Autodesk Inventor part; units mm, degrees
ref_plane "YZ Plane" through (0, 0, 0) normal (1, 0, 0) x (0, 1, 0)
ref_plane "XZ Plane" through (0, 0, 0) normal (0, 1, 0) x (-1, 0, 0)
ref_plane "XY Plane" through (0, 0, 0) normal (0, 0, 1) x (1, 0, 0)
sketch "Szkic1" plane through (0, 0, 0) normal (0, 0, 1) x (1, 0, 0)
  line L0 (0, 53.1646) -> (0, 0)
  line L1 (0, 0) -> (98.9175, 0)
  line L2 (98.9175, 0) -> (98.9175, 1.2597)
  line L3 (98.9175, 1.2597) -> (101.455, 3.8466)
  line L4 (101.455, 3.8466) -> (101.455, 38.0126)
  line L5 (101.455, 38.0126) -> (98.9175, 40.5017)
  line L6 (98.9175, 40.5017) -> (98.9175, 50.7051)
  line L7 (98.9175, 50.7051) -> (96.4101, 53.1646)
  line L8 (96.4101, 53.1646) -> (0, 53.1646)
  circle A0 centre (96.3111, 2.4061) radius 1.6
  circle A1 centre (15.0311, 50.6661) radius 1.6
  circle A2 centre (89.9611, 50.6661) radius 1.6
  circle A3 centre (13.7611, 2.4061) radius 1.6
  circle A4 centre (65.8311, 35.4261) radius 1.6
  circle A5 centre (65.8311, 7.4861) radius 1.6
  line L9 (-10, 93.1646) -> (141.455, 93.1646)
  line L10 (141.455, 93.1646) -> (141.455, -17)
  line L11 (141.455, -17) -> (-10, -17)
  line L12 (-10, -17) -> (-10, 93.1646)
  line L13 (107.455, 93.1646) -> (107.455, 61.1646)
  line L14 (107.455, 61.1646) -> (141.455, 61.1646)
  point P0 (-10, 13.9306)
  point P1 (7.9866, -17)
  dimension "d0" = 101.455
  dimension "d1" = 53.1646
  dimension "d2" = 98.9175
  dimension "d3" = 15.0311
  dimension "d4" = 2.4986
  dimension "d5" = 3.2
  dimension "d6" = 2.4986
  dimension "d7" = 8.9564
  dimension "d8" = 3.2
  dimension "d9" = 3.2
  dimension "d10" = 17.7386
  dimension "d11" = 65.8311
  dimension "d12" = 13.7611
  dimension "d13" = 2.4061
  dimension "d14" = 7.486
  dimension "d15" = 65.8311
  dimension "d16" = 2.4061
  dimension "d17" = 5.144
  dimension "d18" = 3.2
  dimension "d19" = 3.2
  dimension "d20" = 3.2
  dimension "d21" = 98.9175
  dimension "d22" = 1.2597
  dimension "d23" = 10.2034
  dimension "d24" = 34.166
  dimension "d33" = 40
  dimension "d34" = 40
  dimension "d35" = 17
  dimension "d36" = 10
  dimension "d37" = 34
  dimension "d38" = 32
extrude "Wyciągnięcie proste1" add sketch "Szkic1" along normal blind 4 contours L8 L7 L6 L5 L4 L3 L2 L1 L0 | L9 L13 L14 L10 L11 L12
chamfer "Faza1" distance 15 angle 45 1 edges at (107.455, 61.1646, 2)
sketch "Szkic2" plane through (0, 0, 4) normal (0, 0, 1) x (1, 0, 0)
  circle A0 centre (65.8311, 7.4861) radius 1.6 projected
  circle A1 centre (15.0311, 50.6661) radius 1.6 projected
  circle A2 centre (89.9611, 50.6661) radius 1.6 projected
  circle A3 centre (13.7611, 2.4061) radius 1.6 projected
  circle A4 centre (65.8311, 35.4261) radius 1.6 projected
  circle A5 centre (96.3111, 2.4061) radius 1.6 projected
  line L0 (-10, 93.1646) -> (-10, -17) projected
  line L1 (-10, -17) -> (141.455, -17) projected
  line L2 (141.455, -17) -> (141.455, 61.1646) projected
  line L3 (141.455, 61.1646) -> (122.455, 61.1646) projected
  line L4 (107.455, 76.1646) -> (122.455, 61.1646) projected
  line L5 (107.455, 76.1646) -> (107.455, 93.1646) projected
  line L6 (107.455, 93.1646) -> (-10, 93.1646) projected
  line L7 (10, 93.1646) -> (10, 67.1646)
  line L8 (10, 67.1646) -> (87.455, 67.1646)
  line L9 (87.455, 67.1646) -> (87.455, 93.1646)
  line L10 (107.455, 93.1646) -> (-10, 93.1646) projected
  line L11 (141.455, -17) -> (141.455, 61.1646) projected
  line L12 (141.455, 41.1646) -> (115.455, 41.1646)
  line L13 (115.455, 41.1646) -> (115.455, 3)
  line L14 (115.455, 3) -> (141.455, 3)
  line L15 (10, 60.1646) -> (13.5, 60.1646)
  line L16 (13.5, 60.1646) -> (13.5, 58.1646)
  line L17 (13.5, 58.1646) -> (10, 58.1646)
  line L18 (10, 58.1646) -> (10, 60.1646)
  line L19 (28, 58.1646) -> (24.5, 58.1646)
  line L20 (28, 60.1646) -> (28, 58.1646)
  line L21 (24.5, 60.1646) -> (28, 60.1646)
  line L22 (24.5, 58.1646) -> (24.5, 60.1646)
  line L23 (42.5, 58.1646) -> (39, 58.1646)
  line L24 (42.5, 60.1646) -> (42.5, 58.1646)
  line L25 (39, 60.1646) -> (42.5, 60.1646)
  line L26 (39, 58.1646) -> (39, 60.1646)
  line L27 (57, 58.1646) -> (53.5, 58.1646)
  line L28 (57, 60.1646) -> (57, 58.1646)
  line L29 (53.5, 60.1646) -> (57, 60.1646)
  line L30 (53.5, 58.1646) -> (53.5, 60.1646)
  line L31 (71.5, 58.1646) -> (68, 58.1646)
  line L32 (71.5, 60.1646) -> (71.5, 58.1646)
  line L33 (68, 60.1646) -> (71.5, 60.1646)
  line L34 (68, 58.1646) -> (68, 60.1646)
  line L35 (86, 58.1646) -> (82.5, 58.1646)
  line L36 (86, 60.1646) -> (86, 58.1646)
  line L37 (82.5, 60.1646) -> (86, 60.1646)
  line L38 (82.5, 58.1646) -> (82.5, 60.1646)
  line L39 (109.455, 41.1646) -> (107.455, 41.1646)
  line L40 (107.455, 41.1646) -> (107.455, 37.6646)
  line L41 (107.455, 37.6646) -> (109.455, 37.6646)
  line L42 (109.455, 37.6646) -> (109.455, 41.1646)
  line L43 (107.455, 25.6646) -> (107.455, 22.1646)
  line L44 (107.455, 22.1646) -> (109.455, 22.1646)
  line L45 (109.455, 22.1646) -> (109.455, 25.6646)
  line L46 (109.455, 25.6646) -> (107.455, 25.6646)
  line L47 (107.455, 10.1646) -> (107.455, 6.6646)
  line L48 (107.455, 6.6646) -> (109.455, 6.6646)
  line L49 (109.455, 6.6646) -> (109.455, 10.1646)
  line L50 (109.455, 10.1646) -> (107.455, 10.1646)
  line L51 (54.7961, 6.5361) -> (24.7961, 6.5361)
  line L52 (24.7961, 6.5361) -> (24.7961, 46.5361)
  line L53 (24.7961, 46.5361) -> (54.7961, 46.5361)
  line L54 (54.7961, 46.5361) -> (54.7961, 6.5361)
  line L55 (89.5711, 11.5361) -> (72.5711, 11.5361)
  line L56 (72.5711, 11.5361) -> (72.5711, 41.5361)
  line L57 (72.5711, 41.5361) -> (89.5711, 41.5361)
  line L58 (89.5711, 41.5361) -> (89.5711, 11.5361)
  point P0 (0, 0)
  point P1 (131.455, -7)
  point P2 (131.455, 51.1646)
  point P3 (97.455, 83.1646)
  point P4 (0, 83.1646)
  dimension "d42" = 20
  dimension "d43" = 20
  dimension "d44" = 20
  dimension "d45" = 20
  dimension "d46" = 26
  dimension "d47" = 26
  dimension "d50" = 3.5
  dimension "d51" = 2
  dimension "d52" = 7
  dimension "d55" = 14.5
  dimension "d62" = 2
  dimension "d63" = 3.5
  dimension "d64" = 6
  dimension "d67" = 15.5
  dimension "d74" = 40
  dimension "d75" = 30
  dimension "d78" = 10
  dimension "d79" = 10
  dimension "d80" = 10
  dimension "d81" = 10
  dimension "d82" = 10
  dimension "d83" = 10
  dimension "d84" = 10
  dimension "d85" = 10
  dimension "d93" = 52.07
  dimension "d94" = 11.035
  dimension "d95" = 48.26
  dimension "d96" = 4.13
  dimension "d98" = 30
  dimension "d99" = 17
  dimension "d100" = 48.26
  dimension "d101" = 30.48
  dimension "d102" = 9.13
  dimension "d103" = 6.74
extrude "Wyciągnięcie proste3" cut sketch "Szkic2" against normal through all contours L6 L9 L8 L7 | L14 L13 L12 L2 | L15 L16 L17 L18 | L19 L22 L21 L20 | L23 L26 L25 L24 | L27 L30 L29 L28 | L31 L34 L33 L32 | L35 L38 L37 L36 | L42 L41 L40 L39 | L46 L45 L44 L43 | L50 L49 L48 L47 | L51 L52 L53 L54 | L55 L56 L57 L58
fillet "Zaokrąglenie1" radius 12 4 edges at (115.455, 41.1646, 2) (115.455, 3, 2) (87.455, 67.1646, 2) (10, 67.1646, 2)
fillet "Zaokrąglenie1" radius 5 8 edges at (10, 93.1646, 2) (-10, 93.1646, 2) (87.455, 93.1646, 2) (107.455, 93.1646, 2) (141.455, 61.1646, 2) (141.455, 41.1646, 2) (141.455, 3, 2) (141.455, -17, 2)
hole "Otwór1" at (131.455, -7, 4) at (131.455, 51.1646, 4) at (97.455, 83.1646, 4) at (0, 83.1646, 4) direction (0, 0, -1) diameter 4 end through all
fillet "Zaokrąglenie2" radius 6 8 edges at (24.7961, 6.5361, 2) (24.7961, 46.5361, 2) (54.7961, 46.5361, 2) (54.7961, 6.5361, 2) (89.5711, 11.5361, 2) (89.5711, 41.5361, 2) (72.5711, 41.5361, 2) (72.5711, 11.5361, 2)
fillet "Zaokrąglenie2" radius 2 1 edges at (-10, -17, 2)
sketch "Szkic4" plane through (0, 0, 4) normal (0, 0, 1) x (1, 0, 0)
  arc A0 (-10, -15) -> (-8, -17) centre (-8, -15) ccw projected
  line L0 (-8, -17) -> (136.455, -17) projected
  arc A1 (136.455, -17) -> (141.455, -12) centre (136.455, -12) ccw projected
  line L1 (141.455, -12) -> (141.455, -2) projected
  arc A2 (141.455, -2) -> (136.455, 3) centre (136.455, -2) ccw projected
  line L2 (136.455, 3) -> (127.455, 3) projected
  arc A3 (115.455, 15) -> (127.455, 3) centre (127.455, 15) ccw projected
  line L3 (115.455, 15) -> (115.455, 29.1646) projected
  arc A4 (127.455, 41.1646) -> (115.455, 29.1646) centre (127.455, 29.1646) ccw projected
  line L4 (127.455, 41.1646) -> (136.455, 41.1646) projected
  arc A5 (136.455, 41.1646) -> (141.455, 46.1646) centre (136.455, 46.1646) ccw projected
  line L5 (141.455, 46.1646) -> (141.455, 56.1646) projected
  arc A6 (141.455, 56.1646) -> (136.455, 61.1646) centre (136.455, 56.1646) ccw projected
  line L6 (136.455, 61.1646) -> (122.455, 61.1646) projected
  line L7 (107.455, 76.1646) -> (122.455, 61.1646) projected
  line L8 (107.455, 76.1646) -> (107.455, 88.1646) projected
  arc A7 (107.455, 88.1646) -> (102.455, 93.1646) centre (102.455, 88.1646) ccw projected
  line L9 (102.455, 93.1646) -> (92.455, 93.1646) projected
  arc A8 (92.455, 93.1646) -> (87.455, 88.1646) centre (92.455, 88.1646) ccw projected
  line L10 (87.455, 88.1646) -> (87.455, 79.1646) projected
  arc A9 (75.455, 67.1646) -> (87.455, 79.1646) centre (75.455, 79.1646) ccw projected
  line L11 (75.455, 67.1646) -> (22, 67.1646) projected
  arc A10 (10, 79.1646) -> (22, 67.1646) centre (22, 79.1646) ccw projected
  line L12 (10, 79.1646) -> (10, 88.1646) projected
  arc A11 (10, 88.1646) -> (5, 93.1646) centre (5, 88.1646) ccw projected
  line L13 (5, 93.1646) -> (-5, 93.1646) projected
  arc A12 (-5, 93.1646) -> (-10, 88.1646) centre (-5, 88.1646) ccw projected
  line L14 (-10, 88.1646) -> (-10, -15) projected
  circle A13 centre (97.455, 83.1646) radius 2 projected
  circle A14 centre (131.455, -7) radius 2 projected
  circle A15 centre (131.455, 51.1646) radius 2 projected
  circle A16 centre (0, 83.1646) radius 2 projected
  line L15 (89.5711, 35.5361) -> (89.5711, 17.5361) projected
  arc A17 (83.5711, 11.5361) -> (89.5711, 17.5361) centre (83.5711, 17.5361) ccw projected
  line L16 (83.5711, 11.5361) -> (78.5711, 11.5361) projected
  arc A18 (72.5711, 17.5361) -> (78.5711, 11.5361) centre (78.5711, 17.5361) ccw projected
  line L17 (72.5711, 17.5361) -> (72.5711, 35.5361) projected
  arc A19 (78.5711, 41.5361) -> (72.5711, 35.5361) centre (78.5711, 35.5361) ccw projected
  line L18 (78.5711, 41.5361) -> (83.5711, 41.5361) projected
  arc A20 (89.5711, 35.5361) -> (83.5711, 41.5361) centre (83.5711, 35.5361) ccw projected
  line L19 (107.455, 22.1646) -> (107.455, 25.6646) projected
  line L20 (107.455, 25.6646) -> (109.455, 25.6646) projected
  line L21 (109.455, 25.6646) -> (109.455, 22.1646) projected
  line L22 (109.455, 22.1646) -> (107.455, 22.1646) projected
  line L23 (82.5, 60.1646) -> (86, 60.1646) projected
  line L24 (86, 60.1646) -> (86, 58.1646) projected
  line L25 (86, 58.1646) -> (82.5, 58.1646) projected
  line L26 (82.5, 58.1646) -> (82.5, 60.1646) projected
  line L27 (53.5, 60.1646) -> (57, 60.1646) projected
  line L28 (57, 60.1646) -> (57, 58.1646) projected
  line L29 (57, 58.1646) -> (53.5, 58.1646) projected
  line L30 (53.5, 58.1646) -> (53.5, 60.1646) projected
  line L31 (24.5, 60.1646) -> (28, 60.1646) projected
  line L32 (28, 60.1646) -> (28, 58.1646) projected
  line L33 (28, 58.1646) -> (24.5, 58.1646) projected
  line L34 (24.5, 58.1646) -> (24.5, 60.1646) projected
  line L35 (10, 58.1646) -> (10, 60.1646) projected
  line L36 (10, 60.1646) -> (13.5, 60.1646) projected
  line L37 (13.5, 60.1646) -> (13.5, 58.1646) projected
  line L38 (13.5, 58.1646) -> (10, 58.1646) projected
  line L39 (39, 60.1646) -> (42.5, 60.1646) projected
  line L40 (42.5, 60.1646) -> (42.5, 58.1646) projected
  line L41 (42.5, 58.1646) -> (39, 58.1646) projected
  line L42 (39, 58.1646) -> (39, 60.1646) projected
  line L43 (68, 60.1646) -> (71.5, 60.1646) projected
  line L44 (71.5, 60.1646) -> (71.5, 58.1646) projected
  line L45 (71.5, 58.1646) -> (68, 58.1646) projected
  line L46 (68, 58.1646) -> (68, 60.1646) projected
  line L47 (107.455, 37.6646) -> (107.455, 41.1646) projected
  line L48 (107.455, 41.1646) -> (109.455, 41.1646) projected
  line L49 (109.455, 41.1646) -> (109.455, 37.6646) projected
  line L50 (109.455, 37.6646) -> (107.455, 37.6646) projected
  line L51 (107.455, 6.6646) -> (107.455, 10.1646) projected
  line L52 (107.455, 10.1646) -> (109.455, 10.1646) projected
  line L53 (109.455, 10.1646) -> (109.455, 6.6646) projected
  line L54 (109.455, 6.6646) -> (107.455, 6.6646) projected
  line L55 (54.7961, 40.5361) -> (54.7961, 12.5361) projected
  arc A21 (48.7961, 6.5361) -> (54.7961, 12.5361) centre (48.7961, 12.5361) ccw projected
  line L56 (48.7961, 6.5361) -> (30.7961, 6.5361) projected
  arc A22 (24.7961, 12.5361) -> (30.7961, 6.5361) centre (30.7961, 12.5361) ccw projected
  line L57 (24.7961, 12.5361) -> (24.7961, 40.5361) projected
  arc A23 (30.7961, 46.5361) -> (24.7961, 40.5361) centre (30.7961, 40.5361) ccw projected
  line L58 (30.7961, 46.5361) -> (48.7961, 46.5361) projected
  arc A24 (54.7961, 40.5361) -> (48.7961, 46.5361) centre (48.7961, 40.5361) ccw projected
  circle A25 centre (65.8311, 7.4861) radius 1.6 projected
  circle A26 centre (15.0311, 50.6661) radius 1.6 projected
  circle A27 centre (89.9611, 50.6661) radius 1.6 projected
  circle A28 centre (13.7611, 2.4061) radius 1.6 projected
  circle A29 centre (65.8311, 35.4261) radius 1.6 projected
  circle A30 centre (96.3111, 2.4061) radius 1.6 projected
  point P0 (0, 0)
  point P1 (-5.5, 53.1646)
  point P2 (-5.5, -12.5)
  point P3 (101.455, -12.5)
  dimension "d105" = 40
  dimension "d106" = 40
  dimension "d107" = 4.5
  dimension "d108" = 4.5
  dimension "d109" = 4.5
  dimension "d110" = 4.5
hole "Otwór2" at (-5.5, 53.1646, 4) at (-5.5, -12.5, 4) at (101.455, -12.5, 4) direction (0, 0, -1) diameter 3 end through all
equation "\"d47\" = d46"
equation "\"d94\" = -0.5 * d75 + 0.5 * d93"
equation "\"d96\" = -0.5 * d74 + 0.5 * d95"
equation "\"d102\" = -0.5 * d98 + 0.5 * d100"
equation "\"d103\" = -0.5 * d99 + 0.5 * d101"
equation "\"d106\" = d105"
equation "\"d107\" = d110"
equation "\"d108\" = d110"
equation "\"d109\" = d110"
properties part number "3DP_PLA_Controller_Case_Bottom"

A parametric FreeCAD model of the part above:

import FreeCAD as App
import Part
import Sketcher
Q = App.Units.Quantity


def edges_at(feature, points):
    """Names of the edges that pass closest to the given points."""
    edges = feature.Shape.Edges
    near = lambda p: min(range(len(edges)), key=lambda i: edges[i].distToShape(Part.Vertex(*p))[0])
    return sorted({f"Edge{near(p) + 1}" for p in points})

doc = App.newDocument("Part")
body = doc.addObject("PartDesign::Body", "Body")

# Sketch on XY plane
sketch1 = doc.addObject("Sketcher::SketchObject", "Sketch")
body.addObject(sketch1)
sketch1.AttachmentSupport = (doc.XY_Plane, [""])
sketch1.MapMode = "FlatFace"
sketch1.addGeometry(Part.LineSegment(App.Vector(107.455, 93.1646, 0), App.Vector(-10, 93.1646, 0)), False)
sketch1.addGeometry(Part.LineSegment(App.Vector(-10, 93.1646, 0), App.Vector(-10, -17, 0)), False)
sketch1.addGeometry(Part.LineSegment(App.Vector(-10, -17, 0), App.Vector(141.455, -17, 0)), False)
sketch1.addGeometry(Part.LineSegment(App.Vector(141.455, -17, 0), App.Vector(141.455, 61.1646, 0)), False)
sketch1.addGeometry(Part.LineSegment(App.Vector(141.455, 61.1646, 0), App.Vector(107.455, 61.1646, 0)), False)
sketch1.addGeometry(Part.LineSegment(App.Vector(107.455, 61.1646, 0), App.Vector(107.455, 93.1646, 0)), False)
sketch1.addGeometry(Part.Circle(App.Vector(13.7611, 2.4061, 0), App.Vector(0, 0, 1), 1.6), False)
sketch1.addGeometry(Part.Circle(App.Vector(65.8311, 7.4861, 0), App.Vector(0, 0, 1), 1.6), False)
sketch1.addGeometry(Part.Circle(App.Vector(96.3111, 2.4061, 0), App.Vector(0, 0, 1), 1.6), False)
sketch1.addGeometry(Part.Circle(App.Vector(65.8311, 35.4261, 0), App.Vector(0, 0, 1), 1.6), False)
sketch1.addGeometry(Part.Circle(App.Vector(15.0311, 50.6661, 0), App.Vector(0, 0, 1), 1.6), False)
sketch1.addGeometry(Part.Circle(App.Vector(89.9611, 50.6661, 0), App.Vector(0, 0, 1), 1.6), False)
sketch1.addConstraint(Sketcher.Constraint("Coincident", 0, 2, 1, 1))
sketch1.addConstraint(Sketcher.Constraint("Coincident", 1, 2, 2, 1))
sketch1.addConstraint(Sketcher.Constraint("Coincident", 2, 2, 3, 1))
sketch1.addConstraint(Sketcher.Constraint("Coincident", 3, 2, 4, 1))
sketch1.addConstraint(Sketcher.Constraint("Coincident", 4, 2, 5, 1))
sketch1.addConstraint(Sketcher.Constraint("Coincident", 5, 2, 0, 1))
sketch1.addConstraint(Sketcher.Constraint("Horizontal", 0))
sketch1.addConstraint(Sketcher.Constraint("Vertical", 1))
sketch1.addConstraint(Sketcher.Constraint("Horizontal", 2))
sketch1.addConstraint(Sketcher.Constraint("Vertical", 3))
sketch1.addConstraint(Sketcher.Constraint("Horizontal", 4))
sketch1.addConstraint(Sketcher.Constraint("Vertical", 5))
sketch1.addConstraint(Sketcher.Constraint("Equal", 6, 7))
sketch1.addConstraint(Sketcher.Constraint("Equal", 7, 8))
sketch1.addConstraint(Sketcher.Constraint("Equal", 8, 9))
sketch1.addConstraint(Sketcher.Constraint("Equal", 9, 10))
sketch1.addConstraint(Sketcher.Constraint("Equal", 10, 11))
sketch1.addConstraint(Sketcher.Constraint("Horizontal", 6, 3, 8, 3))
sketch1.addConstraint(Sketcher.Constraint("Horizontal", 10, 3, 11, 3))
sketch1.addConstraint(Sketcher.Constraint("Vertical", 7, 3, 9, 3))
sketch1.addConstraint(Sketcher.Constraint("Diameter", 6, Q("3.2 mm")))
sketch1.addConstraint(Sketcher.Constraint("DistanceX", 4, 2, 4, 1, Q("34 mm")))
sketch1.addConstraint(Sketcher.Constraint("DistanceY", 5, 1, 5, 2, Q("32 mm")))
sketch1.addConstraint(Sketcher.Constraint("DistanceX", 0, 2, -1, 1, Q("10 mm")))
sketch1.addConstraint(Sketcher.Constraint("DistanceY", 1, 2, -1, 1, Q("17 mm")))
sketch1.addConstraint(Sketcher.Constraint("DistanceX", -1, 1, 6, 3, Q("13.761 mm")))
sketch1.addConstraint(Sketcher.Constraint("DistanceY", -1, 1, 6, 3, Q("2.406 mm")))
sketch1.addConstraint(Sketcher.Constraint("DistanceX", -1, 1, 7, 3, Q("65.831 mm")))
sketch1.addConstraint(Sketcher.Constraint("DistanceY", -1, 1, 7, 3, Q("7.486 mm")))
sketch1.addConstraint(Sketcher.Constraint("DistanceX", -1, 1, 10, 3, Q("15.031 mm")))
sketch1.addConstraint(Sketcher.Constraint("DistanceX", 6, 3, 11, 3, Q("76.2 mm")))
sketch1.addConstraint(Sketcher.Constraint("DistanceX", 0, 2, 0, 1, Q("117.455 mm")))
sketch1.addConstraint(Sketcher.Constraint("DistanceX", 7, 3, 8, 3, Q("30.48 mm")))
sketch1.addConstraint(Sketcher.Constraint("DistanceY", 7, 3, 9, 3, Q("27.94 mm")))
sketch1.addConstraint(Sketcher.Constraint("DistanceY", 6, 3, 10, 3, Q("48.26 mm")))
sketch1.addConstraint(Sketcher.Constraint("DistanceY", 1, 2, 1, 1, Q("110.1646 mm")))
pad1 = doc.addObject("PartDesign::Pad", "Pad")
body.addObject(pad1)
pad1.Profile = sketch1
pad1.Length = 4
doc.recompute()

chamfer = doc.addObject("PartDesign::Chamfer", "Chamfer")
body.addObject(chamfer)
chamfer.Base = (pad1, edges_at(pad1, [(107.455, 61.165, 2)]))
chamfer.Size = 15

# Sketch on XY plane
sketch2 = doc.addObject("Sketcher::SketchObject", "Sketch001")
body.addObject(sketch2)
sketch2.AttachmentSupport = (doc.XY_Plane, [""])
sketch2.MapMode = "FlatFace"
sketch2.AttachmentOffset = App.Placement(App.Vector(0, 0, 4), App.Rotation())
sketch2.addGeometry(Part.LineSegment(App.Vector(87.455, 93.1646, 0), App.Vector(10, 93.1646, 0)), False)
sketch2.addGeometry(Part.LineSegment(App.Vector(10, 93.1646, 0), App.Vector(10, 67.1646, 0)), False)
sketch2.addGeometry(Part.LineSegment(App.Vector(10, 67.1646, 0), App.Vector(87.455, 67.1646, 0)), False)
sketch2.addGeometry(Part.LineSegment(App.Vector(87.455, 67.1646, 0), App.Vector(87.455, 93.1646, 0)), False)
sketch2.addGeometry(Part.LineSegment(App.Vector(115.455, 3, 0), App.Vector(141.455, 3, 0)), False)
sketch2.addGeometry(Part.LineSegment(App.Vector(141.455, 3, 0), App.Vector(141.455, 41.1646, 0)), False)
sketch2.addGeometry(Part.LineSegment(App.Vector(141.455, 41.1646, 0), App.Vector(115.455, 41.1646, 0)), False)
sketch2.addGeometry(Part.LineSegment(App.Vector(115.455, 41.1646, 0), App.Vector(115.455, 3, 0)), False)
sketch2.addGeometry(Part.LineSegment(App.Vector(13.5, 60.1646, 0), App.Vector(10, 60.1646, 0)), False)
sketch2.addGeometry(Part.LineSegment(App.Vector(10, 60.1646, 0), App.Vector(10, 58.1646, 0)), False)
sketch2.addGeometry(Part.LineSegment(App.Vector(10, 58.1646, 0), App.Vector(13.5, 58.1646, 0)), False)
sketch2.addGeometry(Part.LineSegment(App.Vector(13.5, 58.1646, 0), App.Vector(13.5, 60.1646, 0)), False)
sketch2.addGeometry(Part.LineSegment(App.Vector(24.5, 58.1646, 0), App.Vector(28, 58.1646, 0)), False)
sketch2.addGeometry(Part.LineSegment(App.Vector(28, 58.1646, 0), App.Vector(28, 60.1646, 0)), False)
sketch2.addGeometry(Part.LineSegment(App.Vector(28, 60.1646, 0), App.Vector(24.5, 60.1646, 0)), False)
sketch2.addGeometry(Part.LineSegment(App.Vector(24.5, 60.1646, 0), App.Vector(24.5, 58.1646, 0)), False)
sketch2.addGeometry(Part.LineSegment(App.Vector(39, 58.1646, 0), App.Vector(42.5, 58.1646, 0)), False)
sketch2.addGeometry(Part.LineSegment(App.Vector(42.5, 58.1646, 0), App.Vector(42.5, 60.1646, 0)), False)
sketch2.addGeometry(Part.LineSegment(App.Vector(42.5, 60.1646, 0), App.Vector(39, 60.1646, 0)), False)
sketch2.addGeometry(Part.LineSegment(App.Vector(39, 60.1646, 0), App.Vector(39, 58.1646, 0)), False)
sketch2.addGeometry(Part.LineSegment(App.Vector(53.5, 58.1646, 0), App.Vector(57, 58.1646, 0)), False)
sketch2.addGeometry(Part.LineSegment(App.Vector(57, 58.1646, 0), App.Vector(57, 60.1646, 0)), False)
sketch2.addGeometry(Part.LineSegment(App.Vector(57, 60.1646, 0), App.Vector(53.5, 60.1646, 0)), False)
sketch2.addGeometry(Part.LineSegment(App.Vector(53.5, 60.1646, 0), App.Vector(53.5, 58.1646, 0)), False)
sketch2.addGeometry(Part.LineSegment(App.Vector(68, 58.1646, 0), App.Vector(71.5, 58.1646, 0)), False)
sketch2.addGeometry(Part.LineSegment(App.Vector(71.5, 58.1646, 0), App.Vector(71.5, 60.1646, 0)), False)
sketch2.addGeometry(Part.LineSegment(App.Vector(71.5, 60.1646, 0), App.Vector(68, 60.1646, 0)), False)
sketch2.addGeometry(Part.LineSegment(App.Vector(68, 60.1646, 0), App.Vector(68, 58.1646, 0)), False)
sketch2.addGeometry(Part.LineSegment(App.Vector(82.5, 58.1646, 0), App.Vector(86, 58.1646, 0)), False)
sketch2.addGeometry(Part.LineSegment(App.Vector(86, 58.1646, 0), App.Vector(86, 60.1646, 0)), False)
sketch2.addGeometry(Part.LineSegment(App.Vector(86, 60.1646, 0), App.Vector(82.5, 60.1646, 0)), False)
sketch2.addGeometry(Part.LineSegment(App.Vector(82.5, 60.1646, 0), App.Vector(82.5, 58.1646, 0)), False)
sketch2.addGeometry(Part.LineSegment(App.Vector(109.455, 37.6646, 0), App.Vector(109.455, 41.1646, 0)), False)
sketch2.addGeometry(Part.LineSegment(App.Vector(109.455, 41.1646, 0), App.Vector(107.455, 41.1646, 0)), False)
sketch2.addGeometry(Part.LineSegment(App.Vector(107.455, 41.1646, 0), App.Vector(107.455, 37.6646, 0)), False)
sketch2.addGeometry(Part.LineSegment(App.Vector(107.455, 37.6646, 0), App.Vector(109.455, 37.6646, 0)), False)
sketch2.addGeometry(Part.LineSegment(App.Vector(109.455, 25.6646, 0), App.Vector(107.455, 25.6646, 0)), False)
sketch2.addGeometry(Part.LineSegment(App.Vector(107.455, 25.6646, 0), App.Vector(107.455, 22.1646, 0)), False)
sketch2.addGeometry(Part.LineSegment(App.Vector(107.455, 22.1646, 0), App.Vector(109.455, 22.1646, 0)), False)
sketch2.addGeometry(Part.LineSegment(App.Vector(109.455, 22.1646, 0), App.Vector(109.455, 25.6646, 0)), False)
sketch2.addGeometry(Part.LineSegment(App.Vector(109.455, 10.1646, 0), App.Vector(107.455, 10.1646, 0)), False)
sketch2.addGeometry(Part.LineSegment(App.Vector(107.455, 10.1646, 0), App.Vector(107.455, 6.6646, 0)), False)
sketch2.addGeometry(Part.LineSegment(App.Vector(107.455, 6.6646, 0), App.Vector(109.455, 6.6646, 0)), False)
sketch2.addGeometry(Part.LineSegment(App.Vector(109.455, 6.6646, 0), App.Vector(109.455, 10.1646, 0)), False)
sketch2.addGeometry(Part.LineSegment(App.Vector(24.7961, 6.5361, 0), App.Vector(54.7961, 6.5361, 0)), False)
sketch2.addGeometry(Part.LineSegment(App.Vector(54.7961, 6.5361, 0), App.Vector(54.7961, 46.5361, 0)), False)
sketch2.addGeometry(Part.LineSegment(App.Vector(54.7961, 46.5361, 0), App.Vector(24.7961, 46.5361, 0)), False)
sketch2.addGeometry(Part.LineSegment(App.Vector(24.7961, 46.5361, 0), App.Vector(24.7961, 6.5361, 0)), False)
sketch2.addGeometry(Part.LineSegment(App.Vector(72.5711, 11.5361, 0), App.Vector(89.5711, 11.5361, 0)), False)
sketch2.addGeometry(Part.LineSegment(App.Vector(89.5711, 11.5361, 0), App.Vector(89.5711, 41.5361, 0)), False)
sketch2.addGeometry(Part.LineSegment(App.Vector(89.5711, 41.5361, 0), App.Vector(72.5711, 41.5361, 0)), False)
sketch2.addGeometry(Part.LineSegment(App.Vector(72.5711, 41.5361, 0), App.Vector(72.5711, 11.5361, 0)), False)
sketch2.addConstraint(Sketcher.Constraint("Coincident", 0, 2, 1, 1))
sketch2.addConstraint(Sketcher.Constraint("Coincident", 1, 2, 2, 1))
sketch2.addConstraint(Sketcher.Constraint("Coincident", 2, 2, 3, 1))
sketch2.addConstraint(Sketcher.Constraint("Coincident", 3, 2, 0, 1))
sketch2.addConstraint(Sketcher.Constraint("Coincident", 4, 2, 5, 1))
sketch2.addConstraint(Sketcher.Constraint("Coincident", 5, 2, 6, 1))
sketch2.addConstraint(Sketcher.Constraint("Coincident", 6, 2, 7, 1))
sketch2.addConstraint(Sketcher.Constraint("Coincident", 7, 2, 4, 1))
sketch2.addConstraint(Sketcher.Constraint("Coincident", 8, 2, 9, 1))
sketch2.addConstraint(Sketcher.Constraint("Coincident", 9, 2, 10, 1))
sketch2.addConstraint(Sketcher.Constraint("Coincident", 10, 2, 11, 1))
sketch2.addConstraint(Sketcher.Constraint("Coincident", 11, 2, 8, 1))
sketch2.addConstraint(Sketcher.Constraint("Coincident", 12, 2, 13, 1))
sketch2.addConstraint(Sketcher.Constraint("Coincident", 13, 2, 14, 1))
sketch2.addConstraint(Sketcher.Constraint("Coincident", 14, 2, 15, 1))
sketch2.addConstraint(Sketcher.Constraint("Coincident", 15, 2, 12, 1))
sketch2.addConstraint(Sketcher.Constraint("Coincident", 16, 2, 17, 1))
sketch2.addConstraint(Sketcher.Constraint("Coincident", 17, 2, 18, 1))
sketch2.addConstraint(Sketcher.Constraint("Coincident", 18, 2, 19, 1))
sketch2.addConstraint(Sketcher.Constraint("Coincident", 19, 2, 16, 1))
sketch2.addConstraint(Sketcher.Constraint("Coincident", 20, 2, 21, 1))
sketch2.addConstraint(Sketcher.Constraint("Coincident", 21, 2, 22, 1))
sketch2.addConstraint(Sketcher.Constraint("Coincident", 22, 2, 23, 1))
sketch2.addConstraint(Sketcher.Constraint("Coincident", 23, 2, 20, 1))
sketch2.addConstraint(Sketcher.Constraint("Coincident", 24, 2, 25, 1))
sketch2.addConstraint(Sketcher.Constraint("Coincident", 25, 2, 26, 1))
sketch2.addConstraint(Sketcher.Constraint("Coincident", 26, 2, 27, 1))
sketch2.addConstraint(Sketcher.Constraint("Coincident", 27, 2, 24, 1))
sketch2.addConstraint(Sketcher.Constraint("Coincident", 28, 2, 29, 1))
sketch2.addConstraint(Sketcher.Constraint("Coincident", 29, 2, 30, 1))
sketch2.addConstraint(Sketcher.Constraint("Coincident", 30, 2, 31, 1))
sketch2.addConstraint(Sketcher.Constraint("Coincident", 31, 2, 28, 1))
sketch2.addConstraint(Sketcher.Constraint("Coincident", 32, 2, 33, 1))
sketch2.addConstraint(Sketcher.Constraint("Coincident", 33, 2, 34, 1))
sketch2.addConstraint(Sketcher.Constraint("Coincident", 34, 2, 35, 1))
sketch2.addConstraint(Sketcher.Constraint("Coincident", 35, 2, 32, 1))
sketch2.addConstraint(Sketcher.Constraint("Coincident", 36, 2, 37, 1))
sketch2.addConstraint(Sketcher.Constraint("Coincident", 37, 2, 38, 1))
sketch2.addConstraint(Sketcher.Constraint("Coincident", 38, 2, 39, 1))
sketch2.addConstraint(Sketcher.Constraint("Coincident", 39, 2, 36, 1))
sketch2.addConstraint(Sketcher.Constraint("Coincident", 40, 2, 41, 1))
sketch2.addConstraint(Sketcher.Constraint("Coincident", 41, 2, 42, 1))
sketch2.addConstraint(Sketcher.Constraint("Coincident", 42, 2, 43, 1))
sketch2.addConstraint(Sketcher.Constraint("Coincident", 43, 2, 40, 1))
sketch2.addConstraint(Sketcher.Constraint("Coincident", 44, 2, 45, 1))
sketch2.addConstraint(Sketcher.Constraint("Coincident", 45, 2, 46, 1))
sketch2.addConstraint(Sketcher.Constraint("Coincident", 46, 2, 47, 1))
sketch2.addConstraint(Sketcher.Constraint("Coincident", 47, 2, 44, 1))
sketch2.addConstraint(Sketcher.Constraint("Coincident", 48, 2, 49, 1))
sketch2.addConstraint(Sketcher.Constraint("Coincident", 49, 2, 50, 1))
sketch2.addConstraint(Sketcher.Constraint("Coincident", 50, 2, 51, 1))
sketch2.addConstraint(Sketcher.Constraint("Coincident", 51, 2, 48, 1))
sketch2.addConstraint(Sketcher.Constraint("Horizontal", 0))
sketch2.addConstraint(Sketcher.Constraint("Vertical", 1))
sketch2.addConstraint(Sketcher.Constraint("Horizontal", 2))
sketch2.addConstraint(Sketcher.Constraint("Vertical", 3))
sketch2.addConstraint(Sketcher.Constraint("Horizontal", 4))
sketch2.addConstraint(Sketcher.Constraint("Vertical", 5))
sketch2.addConstraint(Sketcher.Constraint("Horizontal", 6))
sketch2.addConstraint(Sketcher.Constraint("Vertical", 7))
sketch2.addConstraint(Sketcher.Constraint("Horizontal", 8))
sketch2.addConstraint(Sketcher.Constraint("Vertical", 9))
sketch2.addConstraint(Sketcher.Constraint("Horizontal", 10))
sketch2.addConstraint(Sketcher.Constraint("Vertical", 11))
sketch2.addConstraint(Sketcher.Constraint("Horizontal", 12))
sketch2.addConstraint(Sketcher.Constraint("Vertical", 13))
sketch2.addConstraint(Sketcher.Constraint("Horizontal", 14))
sketch2.addConstraint(Sketcher.Constraint("Vertical", 15))
sketch2.addConstraint(Sketcher.Constraint("Horizontal", 16))
sketch2.addConstraint(Sketcher.Constraint("Vertical", 17))
sketch2.addConstraint(Sketcher.Constraint("Horizontal", 18))
sketch2.addConstraint(Sketcher.Constraint("Vertical", 19))
sketch2.addConstraint(Sketcher.Constraint("Horizontal", 20))
sketch2.addConstraint(Sketcher.Constraint("Vertical", 21))
sketch2.addConstraint(Sketcher.Constraint("Horizontal", 22))
sketch2.addConstraint(Sketcher.Constraint("Vertical", 23))
sketch2.addConstraint(Sketcher.Constraint("Horizontal", 24))
sketch2.addConstraint(Sketcher.Constraint("Vertical", 25))
sketch2.addConstraint(Sketcher.Constraint("Horizontal", 26))
sketch2.addConstraint(Sketcher.Constraint("Vertical", 27))
sketch2.addConstraint(Sketcher.Constraint("Horizontal", 28))
sketch2.addConstraint(Sketcher.Constraint("Vertical", 29))
sketch2.addConstraint(Sketcher.Constraint("Horizontal", 30))
sketch2.addConstraint(Sketcher.Constraint("Vertical", 31))
sketch2.addConstraint(Sketcher.Constraint("Vertical", 32))
sketch2.addConstraint(Sketcher.Constraint("Horizontal", 33))
sketch2.addConstraint(Sketcher.Constraint("Vertical", 34))
sketch2.addConstraint(Sketcher.Constraint("Horizontal", 35))
sketch2.addConstraint(Sketcher.Constraint("Horizontal", 36))
sketch2.addConstraint(Sketcher.Constraint("Vertical", 37))
sketch2.addConstraint(Sketcher.Constraint("Horizontal", 38))
sketch2.addConstraint(Sketcher.Constraint("Vertical", 39))
sketch2.addConstraint(Sketcher.Constraint("Horizontal", 40))
sketch2.addConstraint(Sketcher.Constraint("Vertical", 41))
sketch2.addConstraint(Sketcher.Constraint("Horizontal", 42))
sketch2.addConstraint(Sketcher.Constraint("Vertical", 43))
sketch2.addConstraint(Sketcher.Constraint("Horizontal", 44))
sketch2.addConstraint(Sketcher.Constraint("Vertical", 45))
sketch2.addConstraint(Sketcher.Constraint("Horizontal", 46))
sketch2.addConstraint(Sketcher.Constraint("Vertical", 47))
sketch2.addConstraint(Sketcher.Constraint("Horizontal", 48))
sketch2.addConstraint(Sketcher.Constraint("Vertical", 49))
sketch2.addConstraint(Sketcher.Constraint("Horizontal", 50))
sketch2.addConstraint(Sketcher.Constraint("Vertical", 51))
sketch2.addConstraint(Sketcher.Constraint("Horizontal", 10, 2, 12, 2))
sketch2.addConstraint(Sketcher.Constraint("Horizontal", 11, 2, 13, 2))
sketch2.addConstraint(Sketcher.Constraint("Horizontal", 15, 2, 16, 2))
sketch2.addConstraint(Sketcher.Constraint("Horizontal", 14, 2, 17, 2))
sketch2.addConstraint(Sketcher.Constraint("Horizontal", 19, 2, 20, 2))
sketch2.addConstraint(Sketcher.Constraint("Horizontal", 18, 2, 21, 2))
sketch2.addConstraint(Sketcher.Constraint("Horizontal", 23, 2, 24, 2))
sketch2.addConstraint(Sketcher.Constraint("Horizontal", 22, 2, 25, 2))
sketch2.addConstraint(Sketcher.Constraint("Horizontal", 27, 2, 28, 2))
sketch2.addConstraint(Sketcher.Constraint("Horizontal", 26, 2, 29, 2))
sketch2.addConstraint(Sketcher.Constraint("Horizontal", 6, 2, 32, 2))
sketch2.addConstraint(Sketcher.Constraint("Vertical", 1, 2, 8, 2))
sketch2.addConstraint(Sketcher.Constraint("Vertical", 34, 2, 36, 2))
sketch2.addConstraint(Sketcher.Constraint("Vertical", 35, 2, 38, 2))
sketch2.addConstraint(Sketcher.Constraint("Vertical", 37, 2, 40, 2))
sketch2.addConstraint(Sketcher.Constraint("Vertical", 39, 2, 42, 2))
sketch2.addConstraint(Sketcher.Constraint("Equal", 10, 12))
sketch2.addConstraint(Sketcher.Constraint("Equal", 14, 16))
sketch2.addConstraint(Sketcher.Constraint("Equal", 18, 20))
sketch2.addConstraint(Sketcher.Constraint("Equal", 22, 24))
sketch2.addConstraint(Sketcher.Constraint("Equal", 26, 28))
sketch2.addConstraint(Sketcher.Constraint("Equal", 6, 1))
sketch2.addConstraint(Sketcher.Constraint("Equal", 42, 9))
sketch2.addConstraint(Sketcher.Constraint("Equal", 30, 32))
sketch2.addConstraint(Sketcher.Constraint("Equal", 34, 37))
sketch2.addConstraint(Sketcher.Constraint("Equal", 39, 41))
sketch2.addConstraint(Sketcher.Constraint("Equal", 46, 49))
sketch2.addConstraint(Sketcher.Constraint("DistanceX", 4, 1, 4, 2, Q("26 mm")))
sketch2.addConstraint(Sketcher.Constraint("DistanceX", 33, 2, 33, 1, Q("2 mm")))
sketch2.addConstraint(Sketcher.Constraint("DistanceX", 44, 1, 44, 2, Q("30 mm")))
sketch2.addConstraint(Sketcher.Constraint("DistanceX", 48, 1, 48, 2, Q("17 mm")))
sketch2.addConstraint(Sketcher.Constraint("DistanceY", 45, 1, 45, 2, Q("40 mm")))
sketch2.addConstraint(Sketcher.Constraint("DistanceX", 8, 2, 8, 1, Q("3.5 mm")))
sketch2.addConstraint(Sketcher.Constraint("DistanceX", -1, 1, 0, 2, Q("10 mm")))
sketch2.addConstraint(Sketcher.Constraint("DistanceY", 5, 2, 2, 2, Q("26 mm")))
sketch2.addConstraint(Sketcher.Constraint("DistanceY", 8, 2, 1, 2, Q("7 mm")))
sketch2.addConstraint(Sketcher.Constraint("DistanceX", 32, 2, 6, 2, Q("6 mm")))
sketch2.addConstraint(Sketcher.Constraint("DistanceX", 10, 2, 12, 2, Q("14.5 mm")))
sketch2.addConstraint(Sketcher.Constraint("DistanceX", 12, 2, 16, 2, Q("14.5 mm")))
sketch2.addConstraint(Sketcher.Constraint("DistanceX", 16, 2, 20, 2, Q("14.5 mm")))
sketch2.addConstraint(Sketcher.Constraint("DistanceX", 20, 2, 24, 2, Q("14.5 mm")))
sketch2.addConstraint(Sketcher.Constraint("DistanceX", 24, 2, 28, 2, Q("14.5 mm")))
sketch2.addConstraint(Sketcher.Constraint("DistanceY", 36, 2, 33, 2, Q("15.5 mm")))
sketch2.addConstraint(Sketcher.Constraint("DistanceY", 40, 2, 36, 2, Q("15.5 mm")))
sketch2.addConstraint(Sketcher.Constraint("DistanceY", -1, 1, 4, 2, Q("3 mm")))
sketch2.addConstraint(Sketcher.Constraint("DistanceX", 2, 2, 4, 2, Q("54 mm")))
sketch2.addConstraint(Sketcher.Constraint("DistanceY", 50, 2, 45, 2, Q("5 mm")))
sketch2.addConstraint(Sketcher.Constraint("DistanceX", 0, 2, 0, 1, Q("77.455 mm")))
sketch2.addConstraint(Sketcher.Constraint("DistanceY", 5, 1, 5, 2, Q("38.1646 mm")))
sketch2.addConstraint(Sketcher.Constraint("DistanceX", -1, 1, 44, 2, Q("54.796 mm")))
sketch2.addConstraint(Sketcher.Constraint("DistanceY", -1, 1, 44, 2, Q("6.536 mm")))
sketch2.addConstraint(Sketcher.Constraint("DistanceX", -1, 1, 48, 2, Q("89.571 mm")))
pocket1 = doc.addObject("PartDesign::Pocket", "Pocket")
body.addObject(pocket1)
pocket1.Profile = sketch2
pocket1.Type = "ThroughAll"
doc.recompute()

fillet = doc.addObject("PartDesign::Fillet", "Fillet")
body.addObject(fillet)
fillet.Base = (pocket1, edges_at(pocket1, [
    (115.455, 41.165, 2),
    (115.455, 3, 2),
    (87.455, 67.165, 2),
    (10, 67.165, 2),
]))
fillet.Radius = 12
doc.recompute()

fillet2 = doc.addObject("PartDesign::Fillet", "Fillet001")
body.addObject(fillet2)
fillet2.Base = (fillet, edges_at(fillet, [
    (10, 93.165, 2),
    (-10, 93.165, 2),
    (87.455, 93.165, 2),
    (107.455, 93.165, 2),
    (141.455, 61.165, 2),
    (141.455, 41.165, 2),
    (141.455, 3, 2),
    (141.455, -17, 2),
]))
fillet2.Radius = 5

# Sketch on XY plane
sketch3 = doc.addObject("Sketcher::SketchObject", "Sketch002")
body.addObject(sketch3)
sketch3.AttachmentSupport = (doc.XY_Plane, [""])
sketch3.MapMode = "FlatFace"
sketch3.AttachmentOffset = App.Placement(App.Vector(0, 0, 4), App.Rotation())
sketch3.addGeometry(Part.Circle(App.Vector(131.455, -7, 0), App.Vector(0, 0, 1), 2), False)
sketch3.addGeometry(Part.Circle(App.Vector(131.455, 51.1646, 0), App.Vector(0, 0, 1), 2), False)
sketch3.addGeometry(Part.Circle(App.Vector(97.455, 83.1646, 0), App.Vector(0, 0, 1), 2), False)
sketch3.addGeometry(Part.Circle(App.Vector(0, 83.1646, 0), App.Vector(0, 0, 1), 2), False)
sketch3.addConstraint(Sketcher.Constraint("Equal", 0, 1))
sketch3.addConstraint(Sketcher.Constraint("Equal", 1, 2))
sketch3.addConstraint(Sketcher.Constraint("Equal", 2, 3))
sketch3.addConstraint(Sketcher.Constraint("PointOnObject", 3, 3, -2))
sketch3.addConstraint(Sketcher.Constraint("Horizontal", 2, 3, 3, 3))
sketch3.addConstraint(Sketcher.Constraint("Vertical", 0, 3, 1, 3))
sketch3.addConstraint(Sketcher.Constraint("Diameter", 0, Q("4 mm")))
sketch3.addConstraint(Sketcher.Constraint("DistanceY", 0, 3, -1, 1, Q("7 mm")))
sketch3.addConstraint(Sketcher.Constraint("DistanceX", 2, 3, 1, 3, Q("34 mm")))
sketch3.addConstraint(Sketcher.Constraint("DistanceY", 1, 3, 2, 3, Q("32 mm")))
sketch3.addConstraint(Sketcher.Constraint("DistanceX", -1, 1, 0, 3, Q("131.455 mm")))
sketch3.addConstraint(Sketcher.Constraint("DistanceY", -1, 1, 1, 3, Q("51.1646 mm")))
doc.recompute()
hole = doc.addObject("PartDesign::Hole", "Hole")
body.addObject(hole)
hole.Profile = sketch3
hole.ThreadType = "None"
hole.Diameter = 4
hole.DepthType = "ThroughAll"
doc.recompute()

fillet3 = doc.addObject("PartDesign::Fillet", "Fillet002")
body.addObject(fillet3)
fillet3.Base = (hole, edges_at(hole, [
    (24.796, 6.536, 2),
    (24.796, 46.536, 2),
    (54.796, 46.536, 2),
    (54.796, 6.536, 2),
    (89.571, 11.536, 2),
    (89.571, 41.536, 2),
    (72.571, 41.536, 2),
    (72.571, 11.536, 2),
]))
fillet3.Radius = 6
doc.recompute()

fillet4 = doc.addObject("PartDesign::Fillet", "Fillet003")
body.addObject(fillet4)
fillet4.Base = (fillet3, edges_at(fillet3, [(-10, -17, 2)]))
fillet4.Radius = 2

# Sketch on XY plane
sketch4 = doc.addObject("Sketcher::SketchObject", "Sketch003")
body.addObject(sketch4)
sketch4.AttachmentSupport = (doc.XY_Plane, [""])
sketch4.MapMode = "FlatFace"
sketch4.AttachmentOffset = App.Placement(App.Vector(0, 0, 4), App.Rotation())
sketch4.addGeometry(Part.Circle(App.Vector(-5.5, 53.1646, 0), App.Vector(0, 0, 1), 1.5), False)
sketch4.addGeometry(Part.Circle(App.Vector(-5.5, -12.5, 0), App.Vector(0, 0, 1), 1.5), False)
sketch4.addGeometry(Part.Circle(App.Vector(101.455, -12.5, 0), App.Vector(0, 0, 1), 1.5), False)
sketch4.addConstraint(Sketcher.Constraint("Equal", 0, 1))
sketch4.addConstraint(Sketcher.Constraint("Equal", 1, 2))
sketch4.addConstraint(Sketcher.Constraint("Horizontal", 1, 3, 2, 3))
sketch4.addConstraint(Sketcher.Constraint("Vertical", 0, 3, 1, 3))
sketch4.addConstraint(Sketcher.Constraint("Diameter", 0, Q("3 mm")))
sketch4.addConstraint(Sketcher.Constraint("DistanceX", 0, 3, -1, 1, Q("5.5 mm")))
sketch4.addConstraint(Sketcher.Constraint("DistanceY", 1, 3, -1, 1, Q("12.5 mm")))
sketch4.addConstraint(Sketcher.Constraint("DistanceX", -1, 1, 2, 3, Q("101.455 mm")))
sketch4.addConstraint(Sketcher.Constraint("DistanceY", -1, 1, 0, 3, Q("53.1646 mm")))
doc.recompute()
hole2 = doc.addObject("PartDesign::Hole", "Hole001")
body.addObject(hole2)
hole2.Profile = sketch4
hole2.ThreadType = "None"
hole2.Diameter = 3
hole2.DepthType = "ThroughAll"

doc.recompute()
